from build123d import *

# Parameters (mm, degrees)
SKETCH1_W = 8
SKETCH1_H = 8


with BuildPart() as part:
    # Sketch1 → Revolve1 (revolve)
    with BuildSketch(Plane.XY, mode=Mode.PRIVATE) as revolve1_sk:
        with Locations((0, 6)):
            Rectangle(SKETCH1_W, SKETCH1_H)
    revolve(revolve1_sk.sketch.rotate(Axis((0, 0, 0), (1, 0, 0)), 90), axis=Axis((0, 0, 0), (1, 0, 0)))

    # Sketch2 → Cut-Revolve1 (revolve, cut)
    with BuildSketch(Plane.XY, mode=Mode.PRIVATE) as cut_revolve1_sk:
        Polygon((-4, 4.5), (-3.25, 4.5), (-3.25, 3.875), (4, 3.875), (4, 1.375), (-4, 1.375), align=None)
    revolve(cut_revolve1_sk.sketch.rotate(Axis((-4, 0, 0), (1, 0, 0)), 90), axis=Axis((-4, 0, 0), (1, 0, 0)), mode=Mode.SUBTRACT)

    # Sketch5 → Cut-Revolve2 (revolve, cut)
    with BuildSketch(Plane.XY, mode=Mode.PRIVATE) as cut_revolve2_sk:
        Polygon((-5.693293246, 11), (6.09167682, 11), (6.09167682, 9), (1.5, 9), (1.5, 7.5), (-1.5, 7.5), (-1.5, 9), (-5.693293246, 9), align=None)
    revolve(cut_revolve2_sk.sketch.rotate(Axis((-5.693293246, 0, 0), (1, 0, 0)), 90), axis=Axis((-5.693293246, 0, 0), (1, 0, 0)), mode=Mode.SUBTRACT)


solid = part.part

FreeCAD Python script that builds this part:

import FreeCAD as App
import Part
import Sketcher

V = App.Vector


def add_polygon(sketch, points):
    """Adds a closed chain of lines whose ends are joined by coincident constraints."""
    first, n = sketch.GeometryCount, len(points)
    for a, b in zip(points, points[1:] + points[:1]):
        sketch.addGeometry(Part.LineSegment(App.Vector(*a, 0), App.Vector(*b, 0)), False)
    for i in range(n):
        sketch.addConstraint(Sketcher.Constraint("Coincident", first + i, 2, first + (i + 1) % n, 1))

doc = App.newDocument("Part")
body = doc.addObject("PartDesign::Body", "Body")

sketch1 = body.newObject("Sketcher::SketchObject", "Sketch")
sketch1.AttachmentSupport = (doc.getObject("XY_Plane"), [""])
sketch1.MapMode = "FlatFace"
add_polygon(sketch1, [(-4, 10), (-4, 2), (4, 2), (4, 10)])
sketch1.addConstraint(Sketcher.Constraint("Vertical", 0))
sketch1.addConstraint(Sketcher.Constraint("Horizontal", 1))
sketch1.addConstraint(Sketcher.Constraint("Vertical", 2))
sketch1.addConstraint(Sketcher.Constraint("Horizontal", 3))
sketch1.addConstraint(Sketcher.Constraint("Equal", 3, 0))
sketch1.addConstraint(Sketcher.Constraint("DistanceX", 1, 1, 1, 2, 8.0))
sketch1.addConstraint(Sketcher.Constraint("DistanceX", 0, 2, -1, 1, 4.0))
sketch1.addConstraint(Sketcher.Constraint("DistanceY", -1, 1, 0, 2, 2.0))
revolution = body.newObject("PartDesign::Revolution", "Revolution")
revolution.Profile = sketch1
revolution.ReferenceAxis = (sketch1, ["H_Axis"])
revolution.Angle = 360

sketch2 = body.newObject("Sketcher::SketchObject", "Sketch001")
sketch2.AttachmentSupport = (doc.getObject("XY_Plane"), [""])
sketch2.MapMode = "FlatFace"
add_polygon(sketch2, [(-3.2, 4.5), (-4, 4.5), (-4, 1.4), (4, 1.4), (4, 3.9), (-3.2, 3.9)])
sketch2.addConstraint(Sketcher.Constraint("Horizontal", 0))
sketch2.addConstraint(Sketcher.Constraint("Vertical", 1))
sketch2.addConstraint(Sketcher.Constraint("Horizontal", 2))
sketch2.addConstraint(Sketcher.Constraint("Vertical", 3))
sketch2.addConstraint(Sketcher.Constraint("Horizontal", 4))
sketch2.addConstraint(Sketcher.Constraint("Vertical", 5))
sketch2.addConstraint(Sketcher.Constraint("DistanceX", 2, 1, 2, 2, 8.0))
sketch2.addConstraint(Sketcher.Constraint("DistanceY", 3, 1, 3, 2, 2.5))
sketch2.addConstraint(Sketcher.Constraint("DistanceX", 0, 2, -1, 1, 4.0))
sketch2.addConstraint(Sketcher.Constraint("DistanceX", 0, 2, 0, 1, 0.75))
sketch2.addConstraint(Sketcher.Constraint("DistanceY", -1, 1, 0, 2, 4.5))
sketch2.addConstraint(Sketcher.Constraint("DistanceY", 1, 2, 1, 1, 3.125))
groove = body.newObject("PartDesign::Groove", "Groove")
groove.Profile = sketch2
groove.ReferenceAxis = (sketch2, ["H_Axis"])
groove.Angle = 360

sketch3 = body.newObject("Sketcher::SketchObject", "Sketch002")
sketch3.AttachmentSupport = (doc.getObject("XY_Plane"), [""])
sketch3.MapMode = "FlatFace"
add_polygon(sketch3, [(6.1, 11), (-5.7, 11), (-5.7, 9), (-1.5, 9), (-1.5, 7.5), (1.5, 7.5), (1.5, 9), (6.1, 9)])
sketch3.addConstraint(Sketcher.Constraint("Horizontal", 0))
sketch3.addConstraint(Sketcher.Constraint("Vertical", 1))
sketch3.addConstraint(Sketcher.Constraint("Horizontal", 2))
sketch3.addConstraint(Sketcher.Constraint("Vertical", 3))
sketch3.addConstraint(Sketcher.Constraint("Horizontal", 4))
sketch3.addConstraint(Sketcher.Constraint("Vertical", 5))
sketch3.addConstraint(Sketcher.Constraint("Horizontal", 6))
sketch3.addConstraint(Sketcher.Constraint("Vertical", 7))
sketch3.addConstraint(Sketcher.Constraint("Symmetric", 2, 2, 5, 2, -2))
sketch3.addConstraint(Sketcher.Constraint("DistanceX", 4, 1, 4, 2, 3.0))
sketch3.addConstraint(Sketcher.Constraint("DistanceY", 1, 2, 1, 1, 2.0))
sketch3.addConstraint(Sketcher.Constraint("DistanceY", 3, 2, 3, 1, 1.5))
sketch3.addConstraint(Sketcher.Constraint("DistanceY", -1, 1, 0, 2, 11.0))
sketch3.addConstraint(Sketcher.Constraint("DistanceX", 0, 2, 0, 1, 11.78497))
sketch3.addConstraint(Sketcher.Constraint("DistanceX", 2, 1, 2, 2, 4.193293))
groove2 = body.newObject("PartDesign::Groove", "Groove001")
groove2.Profile = sketch3
groove2.ReferenceAxis = (sketch3, ["H_Axis"])
groove2.Angle = 360

doc.recompute()
